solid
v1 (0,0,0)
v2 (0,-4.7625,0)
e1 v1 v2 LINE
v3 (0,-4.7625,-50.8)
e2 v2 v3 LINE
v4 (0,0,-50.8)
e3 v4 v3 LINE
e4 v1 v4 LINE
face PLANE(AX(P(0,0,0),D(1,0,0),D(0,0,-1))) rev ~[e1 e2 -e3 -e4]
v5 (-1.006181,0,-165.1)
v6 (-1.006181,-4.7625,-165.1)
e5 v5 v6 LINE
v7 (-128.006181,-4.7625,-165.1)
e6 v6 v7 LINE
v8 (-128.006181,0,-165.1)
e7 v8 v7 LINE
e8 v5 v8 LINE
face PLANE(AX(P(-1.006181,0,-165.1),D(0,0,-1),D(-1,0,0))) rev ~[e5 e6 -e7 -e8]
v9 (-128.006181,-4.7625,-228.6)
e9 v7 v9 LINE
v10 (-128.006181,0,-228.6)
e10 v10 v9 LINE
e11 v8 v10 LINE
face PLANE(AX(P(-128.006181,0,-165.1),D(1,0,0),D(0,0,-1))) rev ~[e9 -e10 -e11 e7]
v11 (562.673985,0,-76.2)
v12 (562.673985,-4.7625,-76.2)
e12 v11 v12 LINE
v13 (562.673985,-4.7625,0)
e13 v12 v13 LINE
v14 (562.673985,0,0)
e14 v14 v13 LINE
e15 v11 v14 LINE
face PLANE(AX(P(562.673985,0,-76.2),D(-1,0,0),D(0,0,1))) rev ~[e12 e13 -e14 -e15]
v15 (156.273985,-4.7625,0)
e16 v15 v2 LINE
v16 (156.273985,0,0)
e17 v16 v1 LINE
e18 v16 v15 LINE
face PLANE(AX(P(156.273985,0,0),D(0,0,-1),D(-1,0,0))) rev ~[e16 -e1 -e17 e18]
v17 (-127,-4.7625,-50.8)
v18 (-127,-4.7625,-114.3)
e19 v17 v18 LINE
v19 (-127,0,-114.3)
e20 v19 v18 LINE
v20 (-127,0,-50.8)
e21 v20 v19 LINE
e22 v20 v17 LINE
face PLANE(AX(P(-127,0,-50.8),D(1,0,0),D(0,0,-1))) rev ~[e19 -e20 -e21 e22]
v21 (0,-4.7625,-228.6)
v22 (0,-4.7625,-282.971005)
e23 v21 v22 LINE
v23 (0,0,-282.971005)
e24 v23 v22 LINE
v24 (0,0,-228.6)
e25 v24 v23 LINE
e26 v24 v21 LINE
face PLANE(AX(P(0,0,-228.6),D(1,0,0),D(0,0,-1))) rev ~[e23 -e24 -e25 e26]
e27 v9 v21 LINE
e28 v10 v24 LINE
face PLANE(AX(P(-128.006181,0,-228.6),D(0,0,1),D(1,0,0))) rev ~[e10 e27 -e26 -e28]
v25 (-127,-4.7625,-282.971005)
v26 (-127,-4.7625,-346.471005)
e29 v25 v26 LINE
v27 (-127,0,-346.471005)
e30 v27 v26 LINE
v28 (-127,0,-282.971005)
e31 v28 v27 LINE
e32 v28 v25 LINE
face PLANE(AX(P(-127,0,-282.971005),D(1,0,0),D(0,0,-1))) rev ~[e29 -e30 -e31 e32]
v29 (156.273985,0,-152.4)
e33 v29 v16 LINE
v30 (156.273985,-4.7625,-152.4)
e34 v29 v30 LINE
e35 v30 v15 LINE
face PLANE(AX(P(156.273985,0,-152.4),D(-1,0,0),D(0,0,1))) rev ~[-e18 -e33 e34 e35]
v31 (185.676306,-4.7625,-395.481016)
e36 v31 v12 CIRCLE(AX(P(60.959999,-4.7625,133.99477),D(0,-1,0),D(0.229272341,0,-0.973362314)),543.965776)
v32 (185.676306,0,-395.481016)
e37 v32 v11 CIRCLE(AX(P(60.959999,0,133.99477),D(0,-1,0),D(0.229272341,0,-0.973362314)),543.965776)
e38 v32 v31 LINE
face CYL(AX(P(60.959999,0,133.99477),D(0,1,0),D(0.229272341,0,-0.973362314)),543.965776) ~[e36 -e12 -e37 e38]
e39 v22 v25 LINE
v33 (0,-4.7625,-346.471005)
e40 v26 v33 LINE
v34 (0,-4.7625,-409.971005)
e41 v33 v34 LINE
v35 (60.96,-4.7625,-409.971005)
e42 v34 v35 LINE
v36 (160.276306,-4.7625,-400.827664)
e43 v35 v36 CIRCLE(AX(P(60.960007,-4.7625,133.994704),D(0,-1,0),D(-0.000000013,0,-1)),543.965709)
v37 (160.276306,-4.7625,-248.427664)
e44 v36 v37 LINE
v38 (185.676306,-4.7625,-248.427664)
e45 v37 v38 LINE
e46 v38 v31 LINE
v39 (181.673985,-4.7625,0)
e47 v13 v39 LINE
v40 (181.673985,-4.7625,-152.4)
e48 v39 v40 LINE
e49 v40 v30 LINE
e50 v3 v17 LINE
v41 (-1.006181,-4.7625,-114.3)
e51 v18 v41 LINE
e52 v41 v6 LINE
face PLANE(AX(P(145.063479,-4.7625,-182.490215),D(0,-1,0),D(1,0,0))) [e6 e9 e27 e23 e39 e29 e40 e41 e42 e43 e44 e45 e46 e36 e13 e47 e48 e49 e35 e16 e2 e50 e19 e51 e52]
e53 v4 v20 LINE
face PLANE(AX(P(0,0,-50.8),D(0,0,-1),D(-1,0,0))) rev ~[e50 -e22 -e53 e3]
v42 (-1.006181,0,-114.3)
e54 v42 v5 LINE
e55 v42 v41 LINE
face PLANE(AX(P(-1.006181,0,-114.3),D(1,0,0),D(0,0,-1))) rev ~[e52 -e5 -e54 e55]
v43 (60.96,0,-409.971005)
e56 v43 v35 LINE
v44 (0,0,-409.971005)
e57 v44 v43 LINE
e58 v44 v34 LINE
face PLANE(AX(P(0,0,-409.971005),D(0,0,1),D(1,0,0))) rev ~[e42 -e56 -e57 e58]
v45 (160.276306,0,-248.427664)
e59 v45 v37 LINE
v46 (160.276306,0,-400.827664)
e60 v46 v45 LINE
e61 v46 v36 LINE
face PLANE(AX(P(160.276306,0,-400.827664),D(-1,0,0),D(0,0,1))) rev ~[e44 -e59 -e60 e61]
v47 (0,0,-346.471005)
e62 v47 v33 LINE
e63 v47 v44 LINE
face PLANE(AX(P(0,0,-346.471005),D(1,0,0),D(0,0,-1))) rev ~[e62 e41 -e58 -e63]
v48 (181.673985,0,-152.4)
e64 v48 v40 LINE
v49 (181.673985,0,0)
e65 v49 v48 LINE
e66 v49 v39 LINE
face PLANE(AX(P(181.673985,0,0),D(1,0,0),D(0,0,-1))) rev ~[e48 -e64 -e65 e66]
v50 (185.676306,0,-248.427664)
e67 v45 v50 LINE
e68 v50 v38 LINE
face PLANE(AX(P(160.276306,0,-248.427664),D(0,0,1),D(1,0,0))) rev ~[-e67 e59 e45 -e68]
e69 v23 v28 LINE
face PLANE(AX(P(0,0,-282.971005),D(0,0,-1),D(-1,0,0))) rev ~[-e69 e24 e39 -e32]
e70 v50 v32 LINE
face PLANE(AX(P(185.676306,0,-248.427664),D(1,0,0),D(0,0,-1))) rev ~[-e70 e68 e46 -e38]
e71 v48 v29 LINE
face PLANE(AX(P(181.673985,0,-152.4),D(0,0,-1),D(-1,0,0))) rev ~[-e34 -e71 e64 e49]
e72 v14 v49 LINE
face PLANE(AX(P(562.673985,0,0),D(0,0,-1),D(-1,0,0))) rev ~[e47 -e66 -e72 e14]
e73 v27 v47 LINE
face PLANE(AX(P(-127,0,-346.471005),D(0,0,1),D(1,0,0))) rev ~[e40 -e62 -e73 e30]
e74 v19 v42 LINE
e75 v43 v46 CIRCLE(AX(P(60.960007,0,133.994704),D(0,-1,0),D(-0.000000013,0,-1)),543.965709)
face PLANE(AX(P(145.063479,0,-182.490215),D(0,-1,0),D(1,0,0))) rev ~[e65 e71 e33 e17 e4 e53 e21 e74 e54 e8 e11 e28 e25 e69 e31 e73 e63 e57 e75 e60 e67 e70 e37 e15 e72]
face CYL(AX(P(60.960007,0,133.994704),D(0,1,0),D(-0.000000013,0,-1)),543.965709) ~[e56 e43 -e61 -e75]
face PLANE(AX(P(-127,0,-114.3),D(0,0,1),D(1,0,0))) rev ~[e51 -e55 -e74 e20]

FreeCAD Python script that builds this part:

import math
import FreeCAD as App
import Part
import Sketcher

V = App.Vector
Q = App.Units.Quantity

doc = App.newDocument("Part")
body = doc.addObject("PartDesign::Body", "Body")

sketch1 = body.newObject("Sketcher::SketchObject", "Sketch")
sketch1.AttachmentSupport = (doc.getObject("XZ_Plane"), [""])
sketch1.MapMode = "FlatFace"
sketch1.addGeometry([
    Part.LineSegment(V(0, -346, 0), V(0, -410, 0)),
    Part.LineSegment(V(0, -410, 0), V(61, -410, 0)),
    Part.ArcOfCircle(Part.Circle(V(61, 134, 0), V(0, 0, 1), 544), math.radians(-90), math.radians(-79.48)),
    Part.LineSegment(V(160, -401, 0), V(160, -248, 0)),
    Part.LineSegment(V(160, -248, 0), V(186, -248, 0)),
    Part.LineSegment(V(186, -248, 0), V(186, -395, 0)),
    Part.ArcOfCircle(Part.Circle(V(61, 134, 0), V(0, 0, 1), 544), math.radians(-77), math.radians(-23)),
    Part.LineSegment(V(563, -76, 0), V(563, 0, 0)),
    Part.LineSegment(V(563, 0, 0), V(182, 0, 0)),
    Part.LineSegment(V(182, 0, 0), V(182, -152, 0)),
    Part.LineSegment(V(182, -152, 0), V(156, -152, 0)),
    Part.LineSegment(V(156, -152, 0), V(156, 0, 0)),
    Part.LineSegment(V(156, 0, 0), V(0, 0, 0)),
    Part.LineSegment(V(0, 0, 0), V(0, -51, 0)),
    Part.LineSegment(V(0, -51, 0), V(-127, -51, 0)),
    Part.LineSegment(V(-127, -51, 0), V(-127, -114, 0)),
    Part.LineSegment(V(-127, -114, 0), V(-1, -114, 0)),
    Part.LineSegment(V(-1, -114, 0), V(-1, -165, 0)),
    Part.LineSegment(V(-1, -165, 0), V(-128, -165, 0)),
    Part.LineSegment(V(-128, -165, 0), V(-128, -229, 0)),
    Part.LineSegment(V(-128, -229, 0), V(0, -229, 0)),
    Part.LineSegment(V(0, -229, 0), V(0, -283, 0)),
    Part.LineSegment(V(0, -283, 0), V(-127, -283, 0)),
    Part.LineSegment(V(-127, -283, 0), V(-127, -346, 0)),
    Part.LineSegment(V(-127, -346, 0), V(0, -346, 0)),
], False)
sketch1.addConstraint([
    Sketcher.Constraint("Coincident", 0, 2, 1, 1),
    Sketcher.Constraint("Tangent", 1, 2, 2, 1),
    Sketcher.Constraint("Coincident", 2, 2, 3, 1),
    Sketcher.Constraint("Coincident", 3, 2, 4, 1),
    Sketcher.Constraint("Coincident", 4, 2, 5, 1),
    Sketcher.Constraint("Coincident", 5, 2, 6, 1),
    Sketcher.Constraint("Coincident", 6, 2, 7, 1),
    Sketcher.Constraint("Coincident", 7, 2, 8, 1),
    Sketcher.Constraint("Coincident", 8, 2, 9, 1),
    Sketcher.Constraint("Coincident", 9, 2, 10, 1),
    Sketcher.Constraint("Coincident", 10, 2, 11, 1),
    Sketcher.Constraint("Coincident", 11, 2, 12, 1),
    Sketcher.Constraint("Coincident", 12, 2, 13, 1),
    Sketcher.Constraint("Coincident", 13, 2, 14, 1),
    Sketcher.Constraint("Coincident", 14, 2, 15, 1),
    Sketcher.Constraint("Coincident", 15, 2, 16, 1),
    Sketcher.Constraint("Coincident", 16, 2, 17, 1),
    Sketcher.Constraint("Coincident", 17, 2, 18, 1),
    Sketcher.Constraint("Coincident", 18, 2, 19, 1),
    Sketcher.Constraint("Coincident", 19, 2, 20, 1),
    Sketcher.Constraint("Coincident", 20, 2, 21, 1),
    Sketcher.Constraint("Coincident", 21, 2, 22, 1),
    Sketcher.Constraint("Coincident", 22, 2, 23, 1),
    Sketcher.Constraint("Coincident", 23, 2, 24, 1),
    Sketcher.Constraint("Coincident", 24, 2, 0, 1),
    Sketcher.Constraint("Vertical", 0),
    Sketcher.Constraint("Horizontal", 1),
    Sketcher.Constraint("Vertical", 3),
    Sketcher.Constraint("Horizontal", 4),
    Sketcher.Constraint("Vertical", 5),
    Sketcher.Constraint("Vertical", 7),
    Sketcher.Constraint("Horizontal", 8),
    Sketcher.Constraint("Vertical", 9),
    Sketcher.Constraint("Horizontal", 10),
    Sketcher.Constraint("Vertical", 11),
    Sketcher.Constraint("Horizontal", 12),
    Sketcher.Constraint("Vertical", 13),
    Sketcher.Constraint("Horizontal", 14),
    Sketcher.Constraint("Vertical", 15),
    Sketcher.Constraint("Horizontal", 16),
    Sketcher.Constraint("Vertical", 17),
    Sketcher.Constraint("Horizontal", 18),
    Sketcher.Constraint("Vertical", 19),
    Sketcher.Constraint("Horizontal", 20),
    Sketcher.Constraint("Vertical", 21),
    Sketcher.Constraint("Horizontal", 22),
    Sketcher.Constraint("Vertical", 23),
    Sketcher.Constraint("Horizontal", 24),
    Sketcher.Constraint("Coincident", 12, 2, -1, 1),
    Sketcher.Constraint("PointOnObject", 0, 2, -2),
    Sketcher.Constraint("PointOnObject", 7, 2, -1),
    Sketcher.Constraint("PointOnObject", 20, 2, -2),
    Sketcher.Constraint("Vertical", 6, 3, 1, 2),
    Sketcher.Constraint("Vertical", 15, 2, 22, 2),
    Sketcher.Constraint("Equal", 4, 10),
    Sketcher.Constraint("Equal", 14, 18),
    Sketcher.Constraint("Equal", 3, 9),
    Sketcher.Constraint("Equal", 0, 15),
    Sketcher.Constraint("Equal", 13, 17),
    Sketcher.Constraint("Equal", 15, 19),
    Sketcher.Constraint("Equal", 19, 23),
    Sketcher.Constraint("DistanceX", 4, 1, 4, 2, Q("1 in")),
    Sketcher.Constraint("DistanceX", 8, 2, 8, 1, Q("15 in")),
    Sketcher.Constraint("DistanceX", 14, 2, 14, 1, Q("5 in")),
    Sketcher.Constraint("DistanceY", 3, 1, 3, 2, Q("6 in")),
    Sketcher.Constraint("DistanceY", 7, 1, 7, 2, Q("3 in")),
    Sketcher.Constraint("DistanceY", 13, 2, 13, 1, Q("2 in")),
    Sketcher.Constraint("DistanceX", 1, 1, 1, 2, Q("2.4 in")),
    Sketcher.Constraint("DistanceY", 0, 2, 0, 1, Q("2.5 in")),
    Sketcher.Constraint("Radius", 2, Q("543.965709 mm")),
    Sketcher.Constraint("Radius", 6, Q("543.965776 mm")),
    Sketcher.Constraint("DistanceX", 16, 1, 16, 2, Q("125.993819 mm")),
    Sketcher.Constraint("DistanceX", 2, 3, 3, 2, Q("99.316299 mm")),
    Sketcher.Constraint("DistanceX", 12, 2, 12, 1, Q("156.273985 mm")),
    Sketcher.Constraint("DistanceY", 5, 2, 5, 1, Q("147.053352 mm")),
])
pad1 = body.newObject("PartDesign::Pad", "Pad")
pad1.Profile = sketch1
pad1.Length = Q("0.1875 in")

doc.recompute()
